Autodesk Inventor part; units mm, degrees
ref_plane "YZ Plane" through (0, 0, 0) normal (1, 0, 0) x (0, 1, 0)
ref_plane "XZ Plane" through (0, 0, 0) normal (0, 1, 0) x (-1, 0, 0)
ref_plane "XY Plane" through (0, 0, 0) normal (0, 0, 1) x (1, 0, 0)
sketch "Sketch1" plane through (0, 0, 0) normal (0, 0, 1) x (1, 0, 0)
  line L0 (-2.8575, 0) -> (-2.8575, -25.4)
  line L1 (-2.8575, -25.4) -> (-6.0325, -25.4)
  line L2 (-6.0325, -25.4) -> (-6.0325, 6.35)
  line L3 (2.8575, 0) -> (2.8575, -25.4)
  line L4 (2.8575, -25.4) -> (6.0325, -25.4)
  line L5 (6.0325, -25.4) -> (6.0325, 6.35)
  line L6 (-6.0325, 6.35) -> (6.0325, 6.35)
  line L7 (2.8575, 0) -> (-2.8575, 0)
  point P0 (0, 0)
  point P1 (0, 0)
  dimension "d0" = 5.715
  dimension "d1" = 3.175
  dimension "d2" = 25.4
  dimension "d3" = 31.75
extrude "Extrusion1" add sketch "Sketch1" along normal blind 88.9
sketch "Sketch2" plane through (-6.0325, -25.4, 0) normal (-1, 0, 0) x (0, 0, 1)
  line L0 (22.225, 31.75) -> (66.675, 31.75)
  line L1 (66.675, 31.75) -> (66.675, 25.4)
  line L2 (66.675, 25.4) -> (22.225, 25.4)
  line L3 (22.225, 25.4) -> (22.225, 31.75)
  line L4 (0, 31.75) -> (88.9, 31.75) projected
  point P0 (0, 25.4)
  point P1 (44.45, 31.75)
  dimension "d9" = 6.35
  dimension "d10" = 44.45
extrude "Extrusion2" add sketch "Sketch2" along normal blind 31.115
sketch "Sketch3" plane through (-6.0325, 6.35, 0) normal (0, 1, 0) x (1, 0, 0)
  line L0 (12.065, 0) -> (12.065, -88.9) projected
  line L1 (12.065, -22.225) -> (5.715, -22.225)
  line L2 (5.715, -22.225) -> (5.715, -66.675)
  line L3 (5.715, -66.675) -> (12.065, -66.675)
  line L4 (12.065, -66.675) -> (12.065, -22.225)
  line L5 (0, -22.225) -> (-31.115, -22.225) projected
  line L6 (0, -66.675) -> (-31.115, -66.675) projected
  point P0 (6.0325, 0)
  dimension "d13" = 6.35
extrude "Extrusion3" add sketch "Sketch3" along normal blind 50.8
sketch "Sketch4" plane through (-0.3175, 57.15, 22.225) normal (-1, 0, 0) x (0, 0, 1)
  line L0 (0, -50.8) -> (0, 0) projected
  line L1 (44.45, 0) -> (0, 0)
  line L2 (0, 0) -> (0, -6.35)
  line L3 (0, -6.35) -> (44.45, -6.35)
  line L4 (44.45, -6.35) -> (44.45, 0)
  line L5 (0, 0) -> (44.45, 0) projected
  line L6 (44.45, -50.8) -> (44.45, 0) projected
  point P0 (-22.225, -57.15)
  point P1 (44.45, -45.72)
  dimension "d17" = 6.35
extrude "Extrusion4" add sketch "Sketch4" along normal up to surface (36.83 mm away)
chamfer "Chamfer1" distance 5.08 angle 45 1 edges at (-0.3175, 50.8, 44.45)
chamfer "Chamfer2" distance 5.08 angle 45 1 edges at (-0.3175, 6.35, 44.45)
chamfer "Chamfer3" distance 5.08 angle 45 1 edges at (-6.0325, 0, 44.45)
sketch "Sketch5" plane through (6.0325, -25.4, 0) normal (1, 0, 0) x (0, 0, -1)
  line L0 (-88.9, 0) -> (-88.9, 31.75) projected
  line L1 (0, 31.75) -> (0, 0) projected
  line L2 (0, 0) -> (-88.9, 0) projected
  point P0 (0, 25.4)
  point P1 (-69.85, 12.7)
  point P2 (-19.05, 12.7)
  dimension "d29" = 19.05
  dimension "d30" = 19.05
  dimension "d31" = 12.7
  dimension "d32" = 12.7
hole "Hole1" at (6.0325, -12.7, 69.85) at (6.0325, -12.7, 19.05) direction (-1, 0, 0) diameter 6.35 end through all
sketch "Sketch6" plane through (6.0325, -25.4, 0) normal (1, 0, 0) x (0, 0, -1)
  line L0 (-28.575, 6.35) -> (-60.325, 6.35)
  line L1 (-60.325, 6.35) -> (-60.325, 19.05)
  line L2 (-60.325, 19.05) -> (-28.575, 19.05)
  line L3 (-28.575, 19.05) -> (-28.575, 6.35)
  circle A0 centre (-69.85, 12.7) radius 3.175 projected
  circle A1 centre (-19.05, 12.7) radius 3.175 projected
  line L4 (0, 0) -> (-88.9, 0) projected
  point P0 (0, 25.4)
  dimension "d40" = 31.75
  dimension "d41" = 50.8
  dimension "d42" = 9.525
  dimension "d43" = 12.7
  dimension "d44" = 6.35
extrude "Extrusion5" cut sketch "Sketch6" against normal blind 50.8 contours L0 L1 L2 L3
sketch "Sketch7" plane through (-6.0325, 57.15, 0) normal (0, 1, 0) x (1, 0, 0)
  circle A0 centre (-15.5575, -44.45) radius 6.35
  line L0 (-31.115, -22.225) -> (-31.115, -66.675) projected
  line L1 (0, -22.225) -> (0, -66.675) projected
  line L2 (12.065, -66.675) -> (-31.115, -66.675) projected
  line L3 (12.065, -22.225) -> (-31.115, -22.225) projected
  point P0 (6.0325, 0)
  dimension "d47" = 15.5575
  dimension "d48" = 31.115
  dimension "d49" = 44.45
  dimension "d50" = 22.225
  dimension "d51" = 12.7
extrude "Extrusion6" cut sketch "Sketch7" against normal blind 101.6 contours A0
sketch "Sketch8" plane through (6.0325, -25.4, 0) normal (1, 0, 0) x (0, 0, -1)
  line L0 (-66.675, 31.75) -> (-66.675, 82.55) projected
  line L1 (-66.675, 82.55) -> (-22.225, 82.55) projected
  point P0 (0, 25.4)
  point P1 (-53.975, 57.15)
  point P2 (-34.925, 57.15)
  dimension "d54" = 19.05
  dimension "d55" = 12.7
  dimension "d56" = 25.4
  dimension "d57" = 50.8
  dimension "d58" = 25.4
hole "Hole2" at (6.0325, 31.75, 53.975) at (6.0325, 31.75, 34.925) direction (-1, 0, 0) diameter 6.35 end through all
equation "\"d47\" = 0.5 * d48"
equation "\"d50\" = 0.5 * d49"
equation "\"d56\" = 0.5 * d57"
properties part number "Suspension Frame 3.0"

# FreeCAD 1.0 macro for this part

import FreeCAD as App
import Part
import Sketcher

V = App.Vector
Q = App.Units.Quantity


def edges_at(feature, points):
    """Names of the edges that pass closest to the given points."""
    edges = feature.Shape.Edges
    near = lambda p: min(range(len(edges)), key=lambda i: edges[i].distToShape(Part.Vertex(*p))[0])
    return sorted({f"Edge{near(p) + 1}" for p in points})


def add_polygon(sketch, points):
    """Adds a closed chain of lines whose ends are joined by coincident constraints."""
    first, n = sketch.GeometryCount, len(points)
    for a, b in zip(points, points[1:] + points[:1]):
        sketch.addGeometry(Part.LineSegment(App.Vector(*a, 0), App.Vector(*b, 0)), False)
    for i in range(n):
        sketch.addConstraint(Sketcher.Constraint("Coincident", first + i, 2, first + (i + 1) % n, 1))

doc = App.newDocument("Part")
params = doc.addObject("Spreadsheet::Sheet", "Params")
for row, (alias, value) in enumerate([
    ("sketch1_height", "1 in"),
    ("sketch1_height2", "1.25 in"),
    ("sketch1_width", "0.225 in"),
    ("sketch1_width2", "0.125 in"),
    ("pad1_length", "3.5 in"),
    ("sketch2_width", "0.25 in"),
    ("sketch2_height", "1.75 in"),
    ("pad2_length", "1.225 in"),
    ("sketch3_width", "0.25 in"),
    ("sketch3_height", "1.75 in"),
    ("pad3_length", "2 in"),
    ("sketch4_width", "0.25 in"),
    ("sketch4_height", "1.75 in"),
    ("pad4_length", "1.45 in"),
    ("chamfer_size", "0.2 in"),
    ("chamfer2_size", "0.2 in"),
    ("chamfer3_size", "0.2 in"),
    ("sketch5_diameter", "0.25 in"),
    ("hole_diameter", "0.25 in"),
    ("sketch6_width", "0.5 in"),
    ("sketch6_height", "1.25 in"),
    ("pocket1_length", "2 in"),
    ("sketch7_diameter", "0.5 in"),
    ("pocket2_length", "4 in"),
    ("sketch8_diameter", "0.25 in"),
    ("hole2_diameter", "0.25 in"),
], start=1):
    params.set(f"A{row}", alias)
    params.set(f"B{row}", "=" + value)
    params.setAlias(f"B{row}", alias)

body = doc.addObject("PartDesign::Body", "Body")

sketch1 = body.newObject("Sketcher::SketchObject", "Sketch")
sketch1.AttachmentSupport = (doc.getObject("XY_Plane"), [""])
sketch1.MapMode = "FlatFace"
add_polygon(sketch1, [(-2.9, -25.4), (-2.9, 0), (2.9, 0), (2.9, -25.4), (6, -25.4), (6, 6.3), (-6, 6.3), (-6, -25.4)])
sketch1.addConstraint([
    Sketcher.Constraint("Vertical", 0),
    Sketcher.Constraint("Horizontal", 1),
    Sketcher.Constraint("Vertical", 2),
    Sketcher.Constraint("Horizontal", 3),
    Sketcher.Constraint("Vertical", 4),
    Sketcher.Constraint("Horizontal", 5),
    Sketcher.Constraint("Vertical", 6),
    Sketcher.Constraint("Horizontal", 7),
    Sketcher.Constraint("Symmetric", 0, 2, 1, 2, -1, 1),
    Sketcher.Constraint("Symmetric", 3, 2, 6, 2, -2),
    Sketcher.Constraint("DistanceY", 0, 1, 0, 2, Q("1 in")),
    Sketcher.Constraint("DistanceY", 4, 1, 4, 2, Q("1.25 in")),
    Sketcher.Constraint("DistanceX", 1, 1, 1, 2, Q("0.225 in")),
    Sketcher.Constraint("DistanceX", 3, 1, 3, 2, Q("0.125 in")),
])
sketch1.setExpression("Constraints[18]", "Params.sketch1_height")
sketch1.setExpression("Constraints[19]", "Params.sketch1_height2")
sketch1.setExpression("Constraints[20]", "Params.sketch1_width")
sketch1.setExpression("Constraints[21]", "Params.sketch1_width2")
pad1 = body.newObject("PartDesign::Pad", "Pad")
pad1.Profile = sketch1
pad1.setExpression("Length", "Params.pad1_length")

sketch2 = body.newObject("Sketcher::SketchObject", "Sketch001")
sketch2.AttachmentSupport = (doc.getObject("YZ_Plane"), [""])
sketch2.MapMode = "FlatFace"
sketch2.AttachmentOffset = App.Placement(V(0, 0, -0.2375 * 25.4), App.Rotation())
add_polygon(sketch2, [(6, 67), (6, 22), (0, 22), (0, 67)])
sketch2.addConstraint([
    Sketcher.Constraint("Vertical", 0),
    Sketcher.Constraint("Horizontal", 1),
    Sketcher.Constraint("Vertical", 2),
    Sketcher.Constraint("Horizontal", 3),
    Sketcher.Constraint("PointOnObject", 1, 2, -2),
    Sketcher.Constraint("DistanceX", 1, 2, 1, 1, Q("0.25 in")),
    Sketcher.Constraint("DistanceY", 0, 2, 0, 1, Q("1.75 in")),
    Sketcher.Constraint("DistanceY", -1, 1, 0, 2, Q("0.875 in")),
])
sketch2.setExpression("Constraints[9]", "Params.sketch2_width")
sketch2.setExpression("Constraints[10]", "Params.sketch2_height")
pad2 = body.newObject("PartDesign::Pad", "Pad001")
pad2.Profile = sketch2
pad2.setExpression("Length", "Params.pad2_length")
pad2.Reversed = True

sketch3 = body.newObject("Sketcher::SketchObject", "Sketch002")
sketch3.AttachmentSupport = (doc.getObject("XZ_Plane"), [""])
sketch3.MapMode = "FlatFace"
sketch3.AttachmentOffset = App.Placement(V(0, 0, -0.25 * 25.4), App.Rotation())
add_polygon(sketch3, [(6, 67), (6, 22), (0, 22), (0, 67)])
sketch3.addConstraint([
    Sketcher.Constraint("Vertical", 0),
    Sketcher.Constraint("Horizontal", 1),
    Sketcher.Constraint("Vertical", 2),
    Sketcher.Constraint("Horizontal", 3),
    Sketcher.Constraint("DistanceX", 1, 2, 1, 1, Q("0.25 in")),
    Sketcher.Constraint("DistanceY", 0, 2, 0, 1, Q("1.75 in")),
    Sketcher.Constraint("DistanceY", -1, 1, 0, 2, Q("0.875 in")),
    Sketcher.Constraint("DistanceX", -1, 1, 0, 2, Q("0.2375 in")),
])
sketch3.setExpression("Constraints[8]", "Params.sketch3_width")
sketch3.setExpression("Constraints[9]", "Params.sketch3_height")
pad3 = body.newObject("PartDesign::Pad", "Pad002")
pad3.Profile = sketch3
pad3.setExpression("Length", "Params.pad3_length")
pad3.Reversed = True

sketch4 = body.newObject("Sketcher::SketchObject", "Sketch003")
sketch4.AttachmentSupport = (doc.getObject("YZ_Plane"), [""])
sketch4.MapMode = "FlatFace"
sketch4.AttachmentOffset = App.Placement(V(0, 0, -0.0125 * 25.4), App.Rotation())
add_polygon(sketch4, [(57, 22), (51, 22), (51, 67), (57, 67)])
sketch4.addConstraint([
    Sketcher.Constraint("Horizontal", 0),
    Sketcher.Constraint("Vertical", 1),
    Sketcher.Constraint("Horizontal", 2),
    Sketcher.Constraint("Vertical", 3),
    Sketcher.Constraint("DistanceX", 0, 2, 0, 1, Q("0.25 in")),
    Sketcher.Constraint("DistanceX", -1, 1, 0, 2, Q("2 in")),
    Sketcher.Constraint("DistanceY", 1, 1, 1, 2, Q("1.75 in")),
    Sketcher.Constraint("DistanceY", -1, 1, 0, 2, Q("0.875 in")),
])
sketch4.setExpression("Constraints[8]", "Params.sketch4_width")
sketch4.setExpression("Constraints[10]", "Params.sketch4_height")
pad4 = body.newObject("PartDesign::Pad", "Pad003")
pad4.Profile = sketch4
pad4.setExpression("Length", "Params.pad4_length")
pad4.Reversed = True
doc.recompute()

chamfer = body.newObject("PartDesign::Chamfer", "Chamfer")
chamfer.Base = (pad4, edges_at(pad4, [(-0.318, 50.8, 44.45)]))
chamfer.setExpression("Size", "Params.chamfer_size")
doc.recompute()

chamfer2 = body.newObject("PartDesign::Chamfer", "Chamfer001")
chamfer2.Base = (chamfer, edges_at(chamfer, [(-0.318, 6.35, 44.45)]))
chamfer2.setExpression("Size", "Params.chamfer2_size")
doc.recompute()

chamfer3 = body.newObject("PartDesign::Chamfer", "Chamfer002")
chamfer3.Base = (chamfer2, edges_at(chamfer2, [(-6.032, 0, 44.45)]))
chamfer3.setExpression("Size", "Params.chamfer3_size")

sketch5 = body.newObject("Sketcher::SketchObject", "Sketch004")
sketch5.AttachmentSupport = (doc.getObject("YZ_Plane"), [""])
sketch5.MapMode = "FlatFace"
sketch5.AttachmentOffset = App.Placement(V(0, 0, 0.2375 * 25.4), App.Rotation())
sketch5.addGeometry([
    Part.Circle(V(-12.7, 69.8, 0), V(0, 0, 1), 3.2),
    Part.Circle(V(-12.7, 19.1, 0), V(0, 0, 1), 3.2),
], False)
sketch5.addConstraint([
    Sketcher.Constraint("Equal", 0, 1),
    Sketcher.Constraint("Vertical", 0, 3, 1, 3),
    Sketcher.Constraint("Diameter", 0, Q("0.25 in")),
    Sketcher.Constraint("DistanceY", 1, 3, 0, 3, Q("2 in")),
    Sketcher.Constraint("DistanceX", 0, 3, -1, 1, Q("0.5 in")),
    Sketcher.Constraint("DistanceY", -1, 1, 0, 3, Q("2.75 in")),
])
sketch5.setExpression("Constraints[2]", "Params.sketch5_diameter")
doc.recompute()
hole = body.newObject("PartDesign::Hole", "Hole")
hole.Profile = sketch5
hole.ThreadType = "None"
hole.setExpression("Diameter", "Params.hole_diameter")
hole.DepthType = "ThroughAll"

sketch6 = body.newObject("Sketcher::SketchObject", "Sketch005")
sketch6.AttachmentSupport = (doc.getObject("YZ_Plane"), [""])
sketch6.MapMode = "FlatFace"
sketch6.AttachmentOffset = App.Placement(V(0, 0, 0.2375 * 25.4), App.Rotation())
add_polygon(sketch6, [(-19, 60), (-19, 29), (-6, 29), (-6, 60)])
sketch6.addConstraint([
    Sketcher.Constraint("Vertical", 0),
    Sketcher.Constraint("Horizontal", 1),
    Sketcher.Constraint("Vertical", 2),
    Sketcher.Constraint("Horizontal", 3),
    Sketcher.Constraint("DistanceX", 1, 1, 1, 2, Q("0.5 in")),
    Sketcher.Constraint("DistanceY", 0, 2, 0, 1, Q("1.25 in")),
    Sketcher.Constraint("DistanceX", 1, 2, -1, 1, Q("0.25 in")),
    Sketcher.Constraint("DistanceY", -1, 1, 0, 2, Q("1.125 in")),
])
sketch6.setExpression("Constraints[8]", "Params.sketch6_width")
sketch6.setExpression("Constraints[9]", "Params.sketch6_height")
pocket1 = body.newObject("PartDesign::Pocket", "Pocket")
pocket1.Profile = sketch6
pocket1.setExpression("Length", "Params.pocket1_length")

sketch7 = body.newObject("Sketcher::SketchObject", "Sketch006")
sketch7.AttachmentSupport = (doc.getObject("XZ_Plane"), [""])
sketch7.MapMode = "FlatFace"
sketch7.AttachmentOffset = App.Placement(V(0, 0, -2.25 * 25.4), App.Rotation())
sketch7.addGeometry(Part.Circle(V(-22, 44, 0), V(0, 0, 1), 6), False)
sketch7.addConstraint([
    Sketcher.Constraint("Diameter", 0, Q("0.5 in")),
    Sketcher.Constraint("DistanceY", -1, 1, 0, 3, Q("1.75 in")),
    Sketcher.Constraint("DistanceX", 0, 3, -1, 1, Q("0.85 in")),
])
sketch7.setExpression("Constraints[0]", "Params.sketch7_diameter")
pocket2 = body.newObject("PartDesign::Pocket", "Pocket001")
pocket2.Profile = sketch7
pocket2.setExpression("Length", "Params.pocket2_length")
pocket2.Reversed = True

sketch8 = body.newObject("Sketcher::SketchObject", "Sketch007")
sketch8.AttachmentSupport = (doc.getObject("YZ_Plane"), [""])
sketch8.MapMode = "FlatFace"
sketch8.AttachmentOffset = App.Placement(V(0, 0, 0.2375 * 25.4), App.Rotation())
sketch8.addGeometry([
    Part.Circle(V(31.8, 54, 0), V(0, 0, 1), 3.2),
    Part.Circle(V(31.8, 34.9, 0), V(0, 0, 1), 3.2),
], False)
sketch8.addConstraint([
    Sketcher.Constraint("Equal", 0, 1),
    Sketcher.Constraint("Vertical", 0, 3, 1, 3),
    Sketcher.Constraint("Diameter", 0, Q("0.25 in")),
    Sketcher.Constraint("DistanceX", -1, 1, 0, 3, Q("1.25 in")),
    Sketcher.Constraint("DistanceY", 1, 3, 0, 3, Q("0.75 in")),
    Sketcher.Constraint("DistanceY", -1, 1, 0, 3, Q("2.125 in")),
])
sketch8.setExpression("Constraints[2]", "Params.sketch8_diameter")
doc.recompute()
hole2 = body.newObject("PartDesign::Hole", "Hole001")
hole2.Profile = sketch8
hole2.ThreadType = "None"
hole2.setExpression("Diameter", "Params.hole2_diameter")
hole2.DepthType = "ThroughAll"

doc.recompute()
